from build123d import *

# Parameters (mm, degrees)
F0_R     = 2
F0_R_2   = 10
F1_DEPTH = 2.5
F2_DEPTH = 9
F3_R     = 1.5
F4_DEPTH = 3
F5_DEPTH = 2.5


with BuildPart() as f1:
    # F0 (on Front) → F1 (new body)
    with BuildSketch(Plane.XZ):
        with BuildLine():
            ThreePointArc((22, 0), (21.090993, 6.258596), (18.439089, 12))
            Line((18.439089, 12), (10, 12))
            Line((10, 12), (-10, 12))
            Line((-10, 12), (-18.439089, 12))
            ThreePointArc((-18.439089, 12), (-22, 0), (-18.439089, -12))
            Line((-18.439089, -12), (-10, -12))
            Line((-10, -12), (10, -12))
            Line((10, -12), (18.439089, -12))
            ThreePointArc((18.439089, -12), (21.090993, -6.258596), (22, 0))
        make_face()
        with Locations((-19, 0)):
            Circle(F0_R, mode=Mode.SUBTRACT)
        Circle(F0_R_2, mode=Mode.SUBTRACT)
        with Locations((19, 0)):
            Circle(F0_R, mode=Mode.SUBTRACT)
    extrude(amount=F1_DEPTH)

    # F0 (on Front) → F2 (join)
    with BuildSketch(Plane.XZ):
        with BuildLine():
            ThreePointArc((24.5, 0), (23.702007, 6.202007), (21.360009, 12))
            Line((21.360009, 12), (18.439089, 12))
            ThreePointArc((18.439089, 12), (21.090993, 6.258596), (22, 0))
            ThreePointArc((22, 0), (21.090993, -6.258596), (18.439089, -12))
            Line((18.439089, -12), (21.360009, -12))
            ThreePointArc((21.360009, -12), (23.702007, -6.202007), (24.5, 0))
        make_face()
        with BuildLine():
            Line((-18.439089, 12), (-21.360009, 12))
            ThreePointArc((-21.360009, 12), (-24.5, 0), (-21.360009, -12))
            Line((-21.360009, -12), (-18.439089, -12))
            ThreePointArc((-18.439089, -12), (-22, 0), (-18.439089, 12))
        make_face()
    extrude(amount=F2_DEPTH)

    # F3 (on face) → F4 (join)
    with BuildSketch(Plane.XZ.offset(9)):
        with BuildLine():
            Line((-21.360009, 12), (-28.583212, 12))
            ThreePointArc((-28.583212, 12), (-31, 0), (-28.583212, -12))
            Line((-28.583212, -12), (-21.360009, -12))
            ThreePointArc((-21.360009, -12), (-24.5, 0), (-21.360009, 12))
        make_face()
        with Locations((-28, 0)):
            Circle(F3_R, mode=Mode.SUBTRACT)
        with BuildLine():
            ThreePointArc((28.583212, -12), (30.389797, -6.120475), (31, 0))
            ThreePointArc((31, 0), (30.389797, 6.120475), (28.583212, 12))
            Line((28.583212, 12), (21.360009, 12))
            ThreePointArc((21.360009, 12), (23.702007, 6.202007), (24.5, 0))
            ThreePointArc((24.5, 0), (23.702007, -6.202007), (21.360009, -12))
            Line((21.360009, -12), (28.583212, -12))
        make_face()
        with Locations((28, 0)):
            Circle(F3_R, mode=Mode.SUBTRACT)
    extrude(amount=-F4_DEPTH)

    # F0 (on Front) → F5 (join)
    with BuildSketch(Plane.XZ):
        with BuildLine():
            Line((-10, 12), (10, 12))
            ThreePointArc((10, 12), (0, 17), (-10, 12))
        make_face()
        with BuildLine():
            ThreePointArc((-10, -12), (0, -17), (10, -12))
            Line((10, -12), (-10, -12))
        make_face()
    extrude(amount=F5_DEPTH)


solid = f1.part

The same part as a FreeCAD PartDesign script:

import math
import FreeCAD as App
import Part
import Sketcher
from FreeCAD import Vector

doc = App.newDocument("Part")
body = doc.addObject("PartDesign::Body", "Body")

# Sketch on XZ plane
sketch1 = body.newObject("Sketcher::SketchObject", "Sketch")
sketch1.AttachmentSupport = (doc.getObject("XZ_Plane"), [""])
sketch1.MapMode = "FlatFace"
sketch1.addGeometry(Part.ArcOfCircle(Part.Circle(Vector(0.000004, 0.000001, 0), Vector(0, 0, 1), 21.999996), math.radians(-0.000004), math.radians(33.055734)), False)
sketch1.addGeometry(Part.LineSegment(Vector(18.439089, 12, 0), Vector(-18.439089, 12, 0)), False)
sketch1.addGeometry(Part.ArcOfCircle(Part.Circle(Vector(0, 0, 0), Vector(0, 0, 1), 22), math.radians(146.94427), math.radians(213.05573)), False)
sketch1.addGeometry(Part.LineSegment(Vector(-18.439089, -12, 0), Vector(18.439089, -12, 0)), False)
sketch1.addGeometry(Part.ArcOfCircle(Part.Circle(Vector(0.000004, -0.000001, 0), Vector(0, 0, 1), 21.999996), math.radians(-33.055734), math.radians(0.000004)), False)
sketch1.addGeometry(Part.Circle(Vector(-19, 0, 0), Vector(0, 0, 1), 2), False)
sketch1.addGeometry(Part.Circle(Vector(0, 0, 0), Vector(0, 0, 1), 10), False)
sketch1.addGeometry(Part.Circle(Vector(19, 0, 0), Vector(0, 0, 1), 2), False)
sketch1.addConstraint(Sketcher.Constraint("Coincident", 0, 2, 1, 1))
sketch1.addConstraint(Sketcher.Constraint("Coincident", 1, 2, 2, 1))
sketch1.addConstraint(Sketcher.Constraint("Coincident", 2, 2, 3, 1))
sketch1.addConstraint(Sketcher.Constraint("Coincident", 3, 2, 4, 1))
sketch1.addConstraint(Sketcher.Constraint("Tangent", 4, 2, 0, 1))
sketch1.addConstraint(Sketcher.Constraint("Horizontal", 1))
sketch1.addConstraint(Sketcher.Constraint("Horizontal", 3))
sketch1.addConstraint(Sketcher.Constraint("Coincident", 0, 3, -1, 1))
sketch1.addConstraint(Sketcher.Constraint("Coincident", 2, 3, -1, 1))
sketch1.addConstraint(Sketcher.Constraint("Coincident", 6, 3, -1, 1))
sketch1.addConstraint(Sketcher.Constraint("Equal", 0, 4))
sketch1.addConstraint(Sketcher.Constraint("Equal", 5, 7))
sketch1.addConstraint(Sketcher.Constraint("Symmetric", 5, 3, 7, 3, -1, 1))
sketch1.addConstraint(Sketcher.Constraint("Symmetric", 0, 2, 2, 2, -1, 1))
sketch1.addConstraint(Sketcher.Constraint("PointOnObject", 5, 3, -1))
sketch1.addConstraint(Sketcher.Constraint("PointOnObject", 4, 2, -1))
sketch1.addConstraint(Sketcher.Constraint("Diameter", 5, 4.0))
sketch1.addConstraint(Sketcher.Constraint("Diameter", 6, 20.0))
sketch1.addConstraint(Sketcher.Constraint("Radius", 2, 22.0))
sketch1.addConstraint(Sketcher.Constraint("DistanceX", 5, 3, -1, 1, 19.0))
sketch1.addConstraint(Sketcher.Constraint("DistanceY", -1, 1, 0, 2, 12.0))
pad1 = body.newObject("PartDesign::Pad", "Pad")
pad1.Profile = sketch1
pad1.Length = 2.5

# Sketch on XZ plane
sketch2 = body.newObject("Sketcher::SketchObject", "Sketch001")
sketch2.AttachmentSupport = (doc.getObject("XZ_Plane"), [""])
sketch2.MapMode = "FlatFace"
sketch2.addGeometry(Part.ArcOfCircle(Part.Circle(Vector(0.000021, 0.000005, 0), Vector(0, 0, 1), 24.499979), math.radians(-0.000011), math.radians(29.327183)), False)
sketch2.addGeometry(Part.LineSegment(Vector(21.360009, 12, 0), Vector(18.439089, 12, 0)), False)
sketch2.addGeometry(Part.ArcOfCircle(Part.Circle(Vector(0.000004, 0.000001, 0), Vector(0, 0, 1), 21.999996), math.radians(-0.000004), math.radians(33.055734)), False)
sketch2.addGeometry(Part.ArcOfCircle(Part.Circle(Vector(0.000004, -0.000001, 0), Vector(0, 0, 1), 21.999996), math.radians(-33.055734), math.radians(0.000004)), False)
sketch2.addGeometry(Part.LineSegment(Vector(18.439089, -12, 0), Vector(21.360009, -12, 0)), False)
sketch2.addGeometry(Part.ArcOfCircle(Part.Circle(Vector(0.000021, -0.000005, 0), Vector(0, 0, 1), 24.499979), math.radians(-29.327183), math.radians(0.000011)), False)
sketch2.addGeometry(Part.LineSegment(Vector(-18.439089, 12, 0), Vector(-21.360009, 12, 0)), False)
sketch2.addGeometry(Part.ArcOfCircle(Part.Circle(Vector(-0.000002, 0, 0), Vector(0, 0, 1), 24.499998), math.radians(150.672828), math.radians(209.327172)), False)
sketch2.addGeometry(Part.LineSegment(Vector(-21.360009, -12, 0), Vector(-18.439089, -12, 0)), False)
sketch2.addGeometry(Part.ArcOfCircle(Part.Circle(Vector(0, 0, 0), Vector(0, 0, 1), 22), math.radians(146.94427), math.radians(213.05573)), False)
sketch2.addConstraint(Sketcher.Constraint("Coincident", 0, 2, 1, 1))
sketch2.addConstraint(Sketcher.Constraint("Coincident", 1, 2, 2, 2))
sketch2.addConstraint(Sketcher.Constraint("Tangent", 2, 1, 3, 2))
sketch2.addConstraint(Sketcher.Constraint("Coincident", 3, 1, 4, 1))
sketch2.addConstraint(Sketcher.Constraint("Coincident", 4, 2, 5, 1))
sketch2.addConstraint(Sketcher.Constraint("Tangent", 5, 2, 0, 1))
sketch2.addConstraint(Sketcher.Constraint("Coincident", 6, 2, 7, 1))
sketch2.addConstraint(Sketcher.Constraint("Coincident", 7, 2, 8, 1))
sketch2.addConstraint(Sketcher.Constraint("Coincident", 8, 2, 9, 2))
sketch2.addConstraint(Sketcher.Constraint("Coincident", 9, 1, 6, 1))
sketch2.addConstraint(Sketcher.Constraint("Horizontal", 1))
sketch2.addConstraint(Sketcher.Constraint("Horizontal", 4))
sketch2.addConstraint(Sketcher.Constraint("Horizontal", 6))
sketch2.addConstraint(Sketcher.Constraint("Horizontal", 8))
sketch2.addConstraint(Sketcher.Constraint("Coincident", 2, 3, -1, 1))
sketch2.addConstraint(Sketcher.Constraint("Coincident", 7, 3, -1, 1))
sketch2.addConstraint(Sketcher.Constraint("Coincident", 9, 3, -1, 1))
sketch2.addConstraint(Sketcher.Constraint("Equal", 2, 3))
sketch2.addConstraint(Sketcher.Constraint("Equal", 0, 5))
sketch2.addConstraint(Sketcher.Constraint("Symmetric", 4, 2, 6, 2, -1, 1))
sketch2.addConstraint(Sketcher.Constraint("Symmetric", 0, 2, 7, 2, -1, 1))
sketch2.addConstraint(Sketcher.Constraint("Symmetric", 3, 1, 8, 2, -2))
sketch2.addConstraint(Sketcher.Constraint("PointOnObject", 2, 1, -1))
sketch2.addConstraint(Sketcher.Constraint("PointOnObject", 5, 2, -1))
sketch2.addConstraint(Sketcher.Constraint("Radius", 9, 22.0))
sketch2.addConstraint(Sketcher.Constraint("DistanceY", -1, 1, 0, 2, 12.0))
sketch2.addConstraint(Sketcher.Constraint("DistanceX", -1, 1, 5, 2, 24.5))
sketch2.addConstraint(Sketcher.Constraint("Radius", 0, 24.499979))
pad2 = body.newObject("PartDesign::Pad", "Pad001")
pad2.Profile = sketch2
pad2.Length = 9

# Sketch on XZ plane
sketch3 = body.newObject("Sketcher::SketchObject", "Sketch002")
sketch3.AttachmentSupport = (doc.getObject("XZ_Plane"), [""])
sketch3.MapMode = "FlatFace"
sketch3.AttachmentOffset = App.Placement(Vector(0, 0, 9), App.Rotation())
sketch3.addGeometry(Part.LineSegment(Vector(-21.360009, 12, 0), Vector(-28.583212, 12, 0)), False)
sketch3.addGeometry(Part.ArcOfCircle(Part.Circle(Vector(0.000002, 0, 0), Vector(0, 0, 1), 31.000002), math.radians(157.226029), math.radians(202.773971)), False)
sketch3.addGeometry(Part.LineSegment(Vector(-28.583212, -12, 0), Vector(-21.360009, -12, 0)), False)
sketch3.addGeometry(Part.ArcOfCircle(Part.Circle(Vector(-0.000002, 0, 0), Vector(0, 0, 1), 24.499998), math.radians(150.672828), math.radians(209.327172)), False)
sketch3.addGeometry(Part.Circle(Vector(-28, 0, 0), Vector(0, 0, 1), 1.5), False)
sketch3.addGeometry(Part.ArcOfCircle(Part.Circle(Vector(-0.000023, 0.000004, 0), Vector(0, 0, 1), 31.000023), math.radians(-22.773963), math.radians(-0.000008)), False)
sketch3.addGeometry(Part.ArcOfCircle(Part.Circle(Vector(-0.000023, -0.000004, 0), Vector(0, 0, 1), 31.000023), math.radians(0.000008), math.radians(22.773963)), False)
sketch3.addGeometry(Part.LineSegment(Vector(28.583212, 12, 0), Vector(21.360009, 12, 0)), False)
sketch3.addGeometry(Part.ArcOfCircle(Part.Circle(Vector(0.000021, 0.000005, 0), Vector(0, 0, 1), 24.499979), math.radians(-0.000011), math.radians(29.327183)), False)
sketch3.addGeometry(Part.ArcOfCircle(Part.Circle(Vector(0.000021, -0.000005, 0), Vector(0, 0, 1), 24.499979), math.radians(-29.327183), math.radians(0.000011)), False)
sketch3.addGeometry(Part.LineSegment(Vector(21.360009, -12, 0), Vector(28.583212, -12, 0)), False)
sketch3.addGeometry(Part.Circle(Vector(28, 0, 0), Vector(0, 0, 1), 1.5), False)
sketch3.addConstraint(Sketcher.Constraint("Coincident", 0, 2, 1, 1))
sketch3.addConstraint(Sketcher.Constraint("Coincident", 1, 2, 2, 1))
sketch3.addConstraint(Sketcher.Constraint("Coincident", 2, 2, 3, 2))
sketch3.addConstraint(Sketcher.Constraint("Coincident", 3, 1, 0, 1))
sketch3.addConstraint(Sketcher.Constraint("Tangent", 5, 2, 6, 1))
sketch3.addConstraint(Sketcher.Constraint("Coincident", 6, 2, 7, 1))
sketch3.addConstraint(Sketcher.Constraint("Coincident", 7, 2, 8, 2))
sketch3.addConstraint(Sketcher.Constraint("Tangent", 8, 1, 9, 2))
sketch3.addConstraint(Sketcher.Constraint("Coincident", 9, 1, 10, 1))
sketch3.addConstraint(Sketcher.Constraint("Coincident", 10, 2, 5, 1))
sketch3.addConstraint(Sketcher.Constraint("Horizontal", 0))
sketch3.addConstraint(Sketcher.Constraint("Horizontal", 2))
sketch3.addConstraint(Sketcher.Constraint("Horizontal", 7))
sketch3.addConstraint(Sketcher.Constraint("Horizontal", 10))
sketch3.addConstraint(Sketcher.Constraint("Coincident", 1, 3, -1, 1))
sketch3.addConstraint(Sketcher.Constraint("Coincident", 3, 3, -1, 1))
sketch3.addConstraint(Sketcher.Constraint("Equal", 5, 6))
sketch3.addConstraint(Sketcher.Constraint("Equal", 8, 9))
sketch3.addConstraint(Sketcher.Constraint("Equal", 4, 11))
sketch3.addConstraint(Sketcher.Constraint("Symmetric", 5, 3, 8, 3, -1, 1))
sketch3.addConstraint(Sketcher.Constraint("Symmetric", 4, 3, 11, 3, -1, 1))
sketch3.addConstraint(Sketcher.Constraint("Symmetric", 1, 2, 6, 2, -1, 1))
sketch3.addConstraint(Sketcher.Constraint("Symmetric", 3, 1, 9, 1, -1, 1))
sketch3.addConstraint(Sketcher.Constraint("Symmetric", 3, 1, 7, 2, -2))
sketch3.addConstraint(Sketcher.Constraint("PointOnObject", 4, 3, -1))
sketch3.addConstraint(Sketcher.Constraint("PointOnObject", 5, 2, -1))
sketch3.addConstraint(Sketcher.Constraint("PointOnObject", 8, 1, -1))
sketch3.addConstraint(Sketcher.Constraint("Diameter", 4, 3.0))
sketch3.addConstraint(Sketcher.Constraint("Radius", 1, 31.000002))
sketch3.addConstraint(Sketcher.Constraint("DistanceX", 4, 3, -1, 1, 28.0))
sketch3.addConstraint(Sketcher.Constraint("DistanceY", -1, 1, 0, 2, 12.0))
sketch3.addConstraint(Sketcher.Constraint("DistanceX", -1, 1, 5, 2, 31.0))
sketch3.addConstraint(Sketcher.Constraint("DistanceX", -1, 1, 8, 1, 24.5))
pad3 = body.newObject("PartDesign::Pad", "Pad002")
pad3.Profile = sketch3
pad3.Length = 3
pad3.Reversed = True

# Sketch on XZ plane
sketch4 = body.newObject("Sketcher::SketchObject", "Sketch003")
sketch4.AttachmentSupport = (doc.getObject("XZ_Plane"), [""])
sketch4.MapMode = "FlatFace"
sketch4.addGeometry(Part.LineSegment(Vector(-10, 12, 0), Vector(10, 12, 0)), False)
sketch4.addGeometry(Part.ArcOfCircle(Part.Circle(Vector(0, 4.5, 0), Vector(0, 0, 1), 12.5), math.radians(36.869898), math.radians(143.130102)), False)
sketch4.addGeometry(Part.ArcOfCircle(Part.Circle(Vector(0, -4.5, 0), Vector(0, 0, 1), 12.5), math.radians(-143.130102), math.radians(-36.869898)), False)
sketch4.addGeometry(Part.LineSegment(Vector(10, -12, 0), Vector(-10, -12, 0)), False)
sketch4.addConstraint(Sketcher.Constraint("Coincident", 0, 1, 1, 2))
sketch4.addConstraint(Sketcher.Constraint("Coincident", 1, 1, 0, 2))
sketch4.addConstraint(Sketcher.Constraint("Coincident", 2, 1, 3, 2))
sketch4.addConstraint(Sketcher.Constraint("Coincident", 3, 1, 2, 2))
sketch4.addConstraint(Sketcher.Constraint("Horizontal", 0))
sketch4.addConstraint(Sketcher.Constraint("Horizontal", 3))
sketch4.addConstraint(Sketcher.Constraint("Equal", 1, 2))
sketch4.addConstraint(Sketcher.Constraint("Symmetric", 1, 3, 2, 3, -1, 1))
sketch4.addConstraint(Sketcher.Constraint("Symmetric", 0, 1, 2, 1, -1))
sketch4.addConstraint(Sketcher.Constraint("Radius", 1, 12.5))
sketch4.addConstraint(Sketcher.Constraint("DistanceX", 0, 1, 0, 2, 20.0))
sketch4.addConstraint(Sketcher.Constraint("DistanceY", -1, 1, 0, 1, 12.0))
pad4 = body.newObject("PartDesign::Pad", "Pad003")
pad4.Profile = sketch4
pad4.Length = 2.5

doc.recompute()
